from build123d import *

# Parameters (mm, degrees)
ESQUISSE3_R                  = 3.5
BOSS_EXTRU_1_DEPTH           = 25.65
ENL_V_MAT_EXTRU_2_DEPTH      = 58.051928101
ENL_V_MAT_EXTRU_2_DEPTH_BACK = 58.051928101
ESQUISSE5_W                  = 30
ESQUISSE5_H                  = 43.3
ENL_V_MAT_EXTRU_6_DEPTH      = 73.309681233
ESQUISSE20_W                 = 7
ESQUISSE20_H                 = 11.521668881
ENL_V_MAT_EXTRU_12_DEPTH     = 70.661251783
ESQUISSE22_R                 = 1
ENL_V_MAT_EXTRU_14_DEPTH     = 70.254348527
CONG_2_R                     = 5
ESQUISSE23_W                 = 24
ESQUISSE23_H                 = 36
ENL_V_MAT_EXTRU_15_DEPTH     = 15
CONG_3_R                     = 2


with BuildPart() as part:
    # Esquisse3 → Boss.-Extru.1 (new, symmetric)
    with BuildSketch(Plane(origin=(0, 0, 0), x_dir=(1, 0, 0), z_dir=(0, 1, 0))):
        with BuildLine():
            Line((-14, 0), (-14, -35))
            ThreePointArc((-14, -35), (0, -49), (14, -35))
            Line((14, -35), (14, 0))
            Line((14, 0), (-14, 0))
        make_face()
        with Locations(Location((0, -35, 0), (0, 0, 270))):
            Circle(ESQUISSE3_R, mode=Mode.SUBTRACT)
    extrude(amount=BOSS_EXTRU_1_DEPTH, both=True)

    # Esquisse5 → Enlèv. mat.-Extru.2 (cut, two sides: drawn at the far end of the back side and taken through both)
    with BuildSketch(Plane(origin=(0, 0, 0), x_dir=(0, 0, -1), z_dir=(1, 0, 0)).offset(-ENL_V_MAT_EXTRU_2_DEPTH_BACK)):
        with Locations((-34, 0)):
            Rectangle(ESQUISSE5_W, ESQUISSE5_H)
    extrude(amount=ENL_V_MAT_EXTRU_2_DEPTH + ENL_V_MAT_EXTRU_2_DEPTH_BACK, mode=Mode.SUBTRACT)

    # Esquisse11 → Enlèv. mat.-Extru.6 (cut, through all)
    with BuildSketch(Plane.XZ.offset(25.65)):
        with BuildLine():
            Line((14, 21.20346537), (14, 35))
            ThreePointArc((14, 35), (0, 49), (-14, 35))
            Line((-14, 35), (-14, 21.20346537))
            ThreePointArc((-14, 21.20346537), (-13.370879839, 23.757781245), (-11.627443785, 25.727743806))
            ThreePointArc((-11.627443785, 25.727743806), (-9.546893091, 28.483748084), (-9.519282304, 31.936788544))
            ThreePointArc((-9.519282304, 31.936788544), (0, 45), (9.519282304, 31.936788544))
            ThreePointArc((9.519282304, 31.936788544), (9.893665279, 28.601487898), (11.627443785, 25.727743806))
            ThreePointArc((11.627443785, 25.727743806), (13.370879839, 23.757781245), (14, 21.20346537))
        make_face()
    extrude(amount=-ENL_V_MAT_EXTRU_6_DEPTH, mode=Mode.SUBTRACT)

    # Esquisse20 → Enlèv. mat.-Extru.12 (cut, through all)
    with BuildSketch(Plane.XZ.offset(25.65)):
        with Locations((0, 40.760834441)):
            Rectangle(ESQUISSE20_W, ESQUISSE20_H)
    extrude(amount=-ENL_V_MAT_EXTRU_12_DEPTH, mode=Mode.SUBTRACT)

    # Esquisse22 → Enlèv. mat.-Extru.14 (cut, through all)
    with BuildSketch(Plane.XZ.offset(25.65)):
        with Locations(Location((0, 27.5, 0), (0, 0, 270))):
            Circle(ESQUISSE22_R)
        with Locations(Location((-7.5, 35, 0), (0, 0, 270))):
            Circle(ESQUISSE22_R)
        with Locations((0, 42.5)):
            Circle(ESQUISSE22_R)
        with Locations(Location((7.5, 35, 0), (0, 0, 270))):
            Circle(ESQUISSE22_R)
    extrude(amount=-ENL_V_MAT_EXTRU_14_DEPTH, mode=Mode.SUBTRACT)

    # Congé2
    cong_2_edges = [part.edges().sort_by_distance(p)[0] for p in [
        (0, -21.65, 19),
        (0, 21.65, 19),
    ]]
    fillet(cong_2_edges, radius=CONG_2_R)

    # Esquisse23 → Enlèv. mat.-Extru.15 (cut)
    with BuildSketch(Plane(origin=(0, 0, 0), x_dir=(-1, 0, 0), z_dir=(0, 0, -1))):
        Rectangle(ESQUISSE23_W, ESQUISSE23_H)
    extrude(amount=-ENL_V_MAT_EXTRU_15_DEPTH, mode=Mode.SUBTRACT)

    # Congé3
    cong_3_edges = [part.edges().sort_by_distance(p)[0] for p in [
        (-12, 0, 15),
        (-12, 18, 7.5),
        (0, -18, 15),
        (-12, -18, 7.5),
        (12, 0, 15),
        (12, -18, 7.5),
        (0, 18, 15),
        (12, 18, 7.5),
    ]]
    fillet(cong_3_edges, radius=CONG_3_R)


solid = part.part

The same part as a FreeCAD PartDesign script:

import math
import FreeCAD as App
import Part
import Sketcher


def edges_at(feature, points):
    """Names of the edges that pass closest to the given points."""
    edges = feature.Shape.Edges
    near = lambda p: min(range(len(edges)), key=lambda i: edges[i].distToShape(Part.Vertex(*p))[0])
    return sorted({f"Edge{near(p) + 1}" for p in points})

doc = App.newDocument("Part")
body = doc.addObject("PartDesign::Body", "Body")

sketch1 = doc.addObject("Sketcher::SketchObject", "Sketch")
body.addObject(sketch1)
sketch1.AttachmentSupport = (doc.XZ_Plane, [""])
sketch1.MapMode = "FlatFace"
sketch1.addGeometry(Part.LineSegment(App.Vector(-14, 0, 0), App.Vector(-14, 35, 0)), False)
sketch1.addGeometry(Part.ArcOfCircle(Part.Circle(App.Vector(0, 35, 0), App.Vector(0, 0, 1), 14), math.radians(0), math.radians(180)), False)
sketch1.addGeometry(Part.LineSegment(App.Vector(14, 35, 0), App.Vector(14, 0, 0)), False)
sketch1.addGeometry(Part.LineSegment(App.Vector(14, 0, 0), App.Vector(-14, 0, 0)), False)
sketch1.addGeometry(Part.Circle(App.Vector(0, 35, 0), App.Vector(0, 0, 1), 3.5), False)
sketch1.addConstraint(Sketcher.Constraint("Tangent", 0, 2, 1, 2))
sketch1.addConstraint(Sketcher.Constraint("Tangent", 1, 1, 2, 1))
sketch1.addConstraint(Sketcher.Constraint("Coincident", 2, 2, 3, 1))
sketch1.addConstraint(Sketcher.Constraint("Coincident", 3, 2, 0, 1))
sketch1.addConstraint(Sketcher.Constraint("Vertical", 0))
sketch1.addConstraint(Sketcher.Constraint("Vertical", 2))
sketch1.addConstraint(Sketcher.Constraint("Horizontal", 3))
sketch1.addConstraint(Sketcher.Constraint("Coincident", 4, 3, 1, 3))
sketch1.addConstraint(Sketcher.Constraint("Symmetric", 2, 2, 3, 2, -1, 1))
sketch1.addConstraint(Sketcher.Constraint("Diameter", 4, 7.0))
sketch1.addConstraint(Sketcher.Constraint("Radius", 1, 14.0))
sketch1.addConstraint(Sketcher.Constraint("DistanceY", 0, 1, 0, 2, 35.0))
pad1 = doc.addObject("PartDesign::Pad", "Pad")
body.addObject(pad1)
pad1.Profile = sketch1
pad1.Length = 51.3
pad1.Midplane = True

sketch2 = doc.addObject("Sketcher::SketchObject", "Sketch001")
body.addObject(sketch2)
sketch2.AttachmentSupport = (doc.YZ_Plane, [""])
sketch2.MapMode = "FlatFace"
sketch2.addGeometry(Part.LineSegment(App.Vector(22, 49, 0), App.Vector(-22, 49, 0)), False)
sketch2.addGeometry(Part.LineSegment(App.Vector(-22, 49, 0), App.Vector(-22, 19, 0)), False)
sketch2.addGeometry(Part.LineSegment(App.Vector(-22, 19, 0), App.Vector(22, 19, 0)), False)
sketch2.addGeometry(Part.LineSegment(App.Vector(22, 19, 0), App.Vector(22, 49, 0)), False)
sketch2.addConstraint(Sketcher.Constraint("Coincident", 0, 2, 1, 1))
sketch2.addConstraint(Sketcher.Constraint("Coincident", 1, 2, 2, 1))
sketch2.addConstraint(Sketcher.Constraint("Coincident", 2, 2, 3, 1))
sketch2.addConstraint(Sketcher.Constraint("Coincident", 3, 2, 0, 1))
sketch2.addConstraint(Sketcher.Constraint("Horizontal", 0))
sketch2.addConstraint(Sketcher.Constraint("Vertical", 1))
sketch2.addConstraint(Sketcher.Constraint("Horizontal", 2))
sketch2.addConstraint(Sketcher.Constraint("Vertical", 3))
sketch2.addConstraint(Sketcher.Constraint("DistanceY", 1, 2, 1, 1, 30.0))
sketch2.addConstraint(Sketcher.Constraint("DistanceX", 0, 2, 0, 1, 43.3))
sketch2.addConstraint(Sketcher.Constraint("DistanceY", -1, 1, 0, 2, 49.0))
sketch2.addConstraint(Sketcher.Constraint("DistanceX", 0, 2, -1, 1, 21.65))
pocket1 = doc.addObject("PartDesign::Pocket", "Pocket")
body.addObject(pocket1)
pocket1.Profile = sketch2
pocket1.Type = "ThroughAll"
pocket1.Midplane = True

sketch3 = doc.addObject("Sketcher::SketchObject", "Sketch002")
body.addObject(sketch3)
sketch3.AttachmentSupport = (doc.XZ_Plane, [""])
sketch3.MapMode = "FlatFace"
sketch3.AttachmentOffset = App.Placement(App.Vector(0, 0, 25.65), App.Rotation())
sketch3.addGeometry(Part.LineSegment(App.Vector(14, 21, 0), App.Vector(14, 35, 0)), False)
sketch3.addGeometry(Part.ArcOfCircle(Part.Circle(App.Vector(0, 35, 0), App.Vector(0, 0, 1), 14), math.radians(0), math.radians(180)), False)
sketch3.addGeometry(Part.LineSegment(App.Vector(-14, 35, 0), App.Vector(-14, 21, 0)), False)
sketch3.addGeometry(Part.ArcOfCircle(Part.Circle(App.Vector(-8, 21, 0), App.Vector(0, 0, 1), 6), math.radians(125), math.radians(180)), False)
sketch3.addGeometry(Part.ArcOfCircle(Part.Circle(App.Vector(-15, 30, 0), App.Vector(0, 0, 1), 6), math.radians(-55), math.radians(18)), False)
sketch3.addGeometry(Part.ArcOfCircle(Part.Circle(App.Vector(0, 35, 0), App.Vector(0, 0, 1), 10), math.radians(-18), math.radians(198)), False)
sketch3.addGeometry(Part.ArcOfCircle(Part.Circle(App.Vector(17, 31, 0), App.Vector(0, 0, 1), 8), math.radians(174), math.radians(223)), False)
sketch3.addGeometry(Part.ArcOfCircle(Part.Circle(App.Vector(8, 21, 0), App.Vector(0, 0, 1), 6), math.radians(0), math.radians(55)), False)
sketch3.addConstraint(Sketcher.Constraint("Tangent", 0, 2, 1, 1))
sketch3.addConstraint(Sketcher.Constraint("Tangent", 1, 2, 2, 1))
sketch3.addConstraint(Sketcher.Constraint("Tangent", 2, 2, 3, 2))
sketch3.addConstraint(Sketcher.Constraint("Tangent", 3, 1, 4, 1))
sketch3.addConstraint(Sketcher.Constraint("Tangent", 4, 2, 5, 2))
sketch3.addConstraint(Sketcher.Constraint("Coincident", 5, 1, 6, 1))
sketch3.addConstraint(Sketcher.Constraint("Coincident", 6, 2, 7, 2))
sketch3.addConstraint(Sketcher.Constraint("Tangent", 7, 1, 0, 1))
sketch3.addConstraint(Sketcher.Constraint("Vertical", 0))
sketch3.addConstraint(Sketcher.Constraint("Vertical", 2))
sketch3.addConstraint(Sketcher.Constraint("Coincident", 5, 3, 1, 3))
sketch3.addConstraint(Sketcher.Constraint("Equal", 3, 4))
sketch3.addConstraint(Sketcher.Constraint("Equal", 4, 7))
sketch3.addConstraint(Sketcher.Constraint("Symmetric", 3, 3, 7, 3, -2))
sketch3.addConstraint(Sketcher.Constraint("Horizontal", 4, 2, 5, 1))
sketch3.addConstraint(Sketcher.Constraint("Horizontal", 3, 1, 6, 2))
sketch3.addConstraint(Sketcher.Constraint("Radius", 1, 14.0))
sketch3.addConstraint(Sketcher.Constraint("Radius", 5, 10.0))
sketch3.addConstraint(Sketcher.Constraint("Radius", 3, 5.5))
sketch3.addConstraint(Sketcher.Constraint("DistanceY", -1, 1, 1, 3, 35.0))
sketch3.addConstraint(Sketcher.Constraint("Radius", 6, 7.846388))
sketch3.addConstraint(Sketcher.Constraint("DistanceY", 0, 1, 0, 2, 13.796535))
pocket2 = doc.addObject("PartDesign::Pocket", "Pocket001")
body.addObject(pocket2)
pocket2.Profile = sketch3
pocket2.Type = "ThroughAll"

sketch4 = doc.addObject("Sketcher::SketchObject", "Sketch003")
body.addObject(sketch4)
sketch4.AttachmentSupport = (doc.XZ_Plane, [""])
sketch4.MapMode = "FlatFace"
sketch4.AttachmentOffset = App.Placement(App.Vector(0, 0, 25.65), App.Rotation())
sketch4.addGeometry(Part.LineSegment(App.Vector(-4, 47, 0), App.Vector(-4, 35, 0)), False)
sketch4.addGeometry(Part.LineSegment(App.Vector(-4, 35, 0), App.Vector(4, 35, 0)), False)
sketch4.addGeometry(Part.LineSegment(App.Vector(4, 35, 0), App.Vector(4, 47, 0)), False)
sketch4.addGeometry(Part.LineSegment(App.Vector(4, 47, 0), App.Vector(-4, 47, 0)), False)
sketch4.addConstraint(Sketcher.Constraint("Coincident", 0, 2, 1, 1))
sketch4.addConstraint(Sketcher.Constraint("Coincident", 1, 2, 2, 1))
sketch4.addConstraint(Sketcher.Constraint("Coincident", 2, 2, 3, 1))
sketch4.addConstraint(Sketcher.Constraint("Coincident", 3, 2, 0, 1))
sketch4.addConstraint(Sketcher.Constraint("Vertical", 0))
sketch4.addConstraint(Sketcher.Constraint("Horizontal", 1))
sketch4.addConstraint(Sketcher.Constraint("Vertical", 2))
sketch4.addConstraint(Sketcher.Constraint("Horizontal", 3))
sketch4.addConstraint(Sketcher.Constraint("DistanceX", 1, 1, 1, 2, 7.0))
sketch4.addConstraint(Sketcher.Constraint("DistanceY", -1, 1, 0, 2, 35.0))
sketch4.addConstraint(Sketcher.Constraint("DistanceX", 0, 2, -1, 1, 3.5))
sketch4.addConstraint(Sketcher.Constraint("DistanceY", 0, 2, 0, 1, 11.521669))
pocket3 = doc.addObject("PartDesign::Pocket", "Pocket002")
body.addObject(pocket3)
pocket3.Profile = sketch4
pocket3.Type = "ThroughAll"

sketch5 = doc.addObject("Sketcher::SketchObject", "Sketch004")
body.addObject(sketch5)
sketch5.AttachmentSupport = (doc.XZ_Plane, [""])
sketch5.MapMode = "FlatFace"
sketch5.AttachmentOffset = App.Placement(App.Vector(0, 0, 25.65), App.Rotation())
sketch5.addGeometry(Part.Circle(App.Vector(0, 27.5, 0), App.Vector(0, 0, 1), 1), False)
sketch5.addGeometry(Part.Circle(App.Vector(-7.5, 35, 0), App.Vector(0, 0, 1), 1), False)
sketch5.addGeometry(Part.Circle(App.Vector(0, 42.5, 0), App.Vector(0, 0, 1), 1), False)
sketch5.addGeometry(Part.Circle(App.Vector(7.5, 35, 0), App.Vector(0, 0, 1), 1), False)
sketch5.addConstraint(Sketcher.Constraint("Equal", 0, 1))
sketch5.addConstraint(Sketcher.Constraint("Equal", 1, 2))
sketch5.addConstraint(Sketcher.Constraint("Equal", 2, 3))
sketch5.addConstraint(Sketcher.Constraint("Symmetric", 1, 3, 3, 3, -2))
sketch5.addConstraint(Sketcher.Constraint("PointOnObject", 0, 3, -2))
sketch5.addConstraint(Sketcher.Constraint("PointOnObject", 2, 3, -2))
sketch5.addConstraint(Sketcher.Constraint("Diameter", 0, 2.0))
sketch5.addConstraint(Sketcher.Constraint("DistanceY", -1, 1, 1, 3, 35.0))
sketch5.addConstraint(Sketcher.Constraint("DistanceY", 0, 3, 2, 3, 15.0))
sketch5.addConstraint(Sketcher.Constraint("DistanceX", 1, 3, 3, 3, 15.0))
sketch5.addConstraint(Sketcher.Constraint("DistanceY", -1, 1, 0, 3, 27.5))
pocket4 = doc.addObject("PartDesign::Pocket", "Pocket003")
body.addObject(pocket4)
pocket4.Profile = sketch5
pocket4.Type = "ThroughAll"
doc.recompute()

fillet = doc.addObject("PartDesign::Fillet", "Fillet")
body.addObject(fillet)
fillet.Base = (pocket4, edges_at(pocket4, [(0, -21.65, 19), (0, 21.65, 19)]))
fillet.Radius = 5

sketch6 = doc.addObject("Sketcher::SketchObject", "Sketch005")
body.addObject(sketch6)
sketch6.AttachmentSupport = (doc.XY_Plane, [""])
sketch6.MapMode = "FlatFace"
sketch6.addGeometry(Part.LineSegment(App.Vector(12, 18, 0), App.Vector(12, -18, 0)), False)
sketch6.addGeometry(Part.LineSegment(App.Vector(12, -18, 0), App.Vector(-12, -18, 0)), False)
sketch6.addGeometry(Part.LineSegment(App.Vector(-12, -18, 0), App.Vector(-12, 18, 0)), False)
sketch6.addGeometry(Part.LineSegment(App.Vector(-12, 18, 0), App.Vector(12, 18, 0)), False)
sketch6.addConstraint(Sketcher.Constraint("Coincident", 0, 2, 1, 1))
sketch6.addConstraint(Sketcher.Constraint("Coincident", 1, 2, 2, 1))
sketch6.addConstraint(Sketcher.Constraint("Coincident", 2, 2, 3, 1))
sketch6.addConstraint(Sketcher.Constraint("Coincident", 3, 2, 0, 1))
sketch6.addConstraint(Sketcher.Constraint("Vertical", 0))
sketch6.addConstraint(Sketcher.Constraint("Horizontal", 1))
sketch6.addConstraint(Sketcher.Constraint("Vertical", 2))
sketch6.addConstraint(Sketcher.Constraint("Horizontal", 3))
sketch6.addConstraint(Sketcher.Constraint("Symmetric", 0, 2, 2, 2, -1, 1))
sketch6.addConstraint(Sketcher.Constraint("DistanceX", 1, 2, 1, 1, 24.0))
sketch6.addConstraint(Sketcher.Constraint("DistanceY", 0, 2, 0, 1, 36.0))
pocket5 = doc.addObject("PartDesign::Pocket", "Pocket004")
body.addObject(pocket5)
pocket5.Profile = sketch6
pocket5.Length = 15
pocket5.Reversed = True
doc.recompute()

fillet2 = doc.addObject("PartDesign::Fillet", "Fillet001")
body.addObject(fillet2)
fillet2.Base = (pocket5, edges_at(pocket5, [
    (-12, 0, 15),
    (-12, 18, 7.5),
    (0, -18, 15),
    (-12, -18, 7.5),
    (12, 0, 15),
    (12, -18, 7.5),
    (0, 18, 15),
    (12, 18, 7.5),
]))
fillet2.Radius = 2

doc.recompute()
